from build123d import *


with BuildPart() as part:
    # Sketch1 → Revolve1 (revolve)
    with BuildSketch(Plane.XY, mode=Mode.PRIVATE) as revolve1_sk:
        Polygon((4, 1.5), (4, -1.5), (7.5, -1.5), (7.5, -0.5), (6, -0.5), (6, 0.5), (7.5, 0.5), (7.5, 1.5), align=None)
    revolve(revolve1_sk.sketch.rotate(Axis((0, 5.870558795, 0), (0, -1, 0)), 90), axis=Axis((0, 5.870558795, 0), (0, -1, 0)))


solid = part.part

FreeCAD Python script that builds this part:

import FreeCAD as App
import Part
import Sketcher
Q = App.Units.Quantity


def add_polygon(sketch, points):
    """Adds a closed chain of lines whose ends are joined by coincident constraints."""
    first, n = sketch.GeometryCount, len(points)
    for a, b in zip(points, points[1:] + points[:1]):
        sketch.addGeometry(Part.LineSegment(App.Vector(*a, 0), App.Vector(*b, 0)), False)
    for i in range(n):
        sketch.addConstraint(Sketcher.Constraint("Coincident", first + i, 2, first + (i + 1) % n, 1))

doc = App.newDocument("Part")
body = doc.addObject("PartDesign::Body", "Body")

# Sketch on XY plane
sketch1 = body.newObject("Sketcher::SketchObject", "Sketch")
sketch1.AttachmentSupport = (doc.getObject("XY_Plane"), [""])
sketch1.MapMode = "FlatFace"
add_polygon(sketch1, [(4, 1.5), (4, -1.5), (7.5, -1.5), (7.5, -0.5), (6, -0.5), (6, 0.5), (7.5, 0.5), (7.5, 1.5)])  # lines 0-7
sketch1.addConstraint([
    Sketcher.Constraint("Vertical", 0),
    Sketcher.Constraint("Horizontal", 1),
    Sketcher.Constraint("Vertical", 2),
    Sketcher.Constraint("Horizontal", 3),
    Sketcher.Constraint("Vertical", 4),
    Sketcher.Constraint("Horizontal", 5),
    Sketcher.Constraint("Vertical", 6),
    Sketcher.Constraint("Horizontal", 7),
    Sketcher.Constraint("Symmetric", 2, 2, 5, 2, -1),
    Sketcher.Constraint("Equal", 2, 4),
    Sketcher.Constraint("Equal", 4, 6),
    Sketcher.Constraint("DistanceY", 0, 2, 0, 1, Q("3 mm")),
    Sketcher.Constraint("DistanceX", 1, 1, 1, 2, Q("3.5 mm")),
    Sketcher.Constraint("DistanceX", 3, 2, 3, 1, Q("1.5 mm")),
    Sketcher.Constraint("DistanceX", -1, 1, 0, 2, Q("4 mm")),
])
revolution = body.newObject("PartDesign::Revolution", "Revolution")
revolution.Profile = sketch1
revolution.ReferenceAxis = (sketch1, ["V_Axis"])
revolution.Angle = 360

doc.recompute()
